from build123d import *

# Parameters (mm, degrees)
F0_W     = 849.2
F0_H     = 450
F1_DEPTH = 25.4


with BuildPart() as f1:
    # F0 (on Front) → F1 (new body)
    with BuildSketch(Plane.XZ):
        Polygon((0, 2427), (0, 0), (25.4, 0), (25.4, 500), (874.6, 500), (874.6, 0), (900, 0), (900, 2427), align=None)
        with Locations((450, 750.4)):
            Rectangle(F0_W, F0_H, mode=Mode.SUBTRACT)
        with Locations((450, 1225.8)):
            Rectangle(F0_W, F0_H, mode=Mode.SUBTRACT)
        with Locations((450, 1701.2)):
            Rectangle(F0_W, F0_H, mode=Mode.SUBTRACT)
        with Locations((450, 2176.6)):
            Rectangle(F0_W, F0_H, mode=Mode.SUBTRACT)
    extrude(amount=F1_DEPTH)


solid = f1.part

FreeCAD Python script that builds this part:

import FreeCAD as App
import Part
import Sketcher

V = App.Vector
Q = App.Units.Quantity


def add_polygon(sketch, points):
    """Adds a closed chain of lines whose ends are joined by coincident constraints."""
    first, n = sketch.GeometryCount, len(points)
    for a, b in zip(points, points[1:] + points[:1]):
        sketch.addGeometry(Part.LineSegment(App.Vector(*a, 0), App.Vector(*b, 0)), False)
    for i in range(n):
        sketch.addConstraint(Sketcher.Constraint("Coincident", first + i, 2, first + (i + 1) % n, 1))

doc = App.newDocument("Part")
body = doc.addObject("PartDesign::Body", "Body")

sketch1 = body.newObject("Sketcher::SketchObject", "Sketch")
sketch1.AttachmentSupport = (doc.getObject("XZ_Plane"), [""])
sketch1.MapMode = "FlatFace"
add_polygon(sketch1, [(0, 2427), (0, 0), (25.4, 0), (25.4, 500), (874.6, 500), (874.6, 0), (900, 0), (900, 2427)])
add_polygon(sketch1, [(874.6, 525.4), (25.4, 525.4), (25.4, 975.4), (874.6, 975.4)])
add_polygon(sketch1, [(874.6, 1000.8), (25.4, 1000.8), (25.4, 1450.8), (874.6, 1450.8)])
add_polygon(sketch1, [(874.6, 1476.2), (25.4, 1476.2), (25.4, 1926.2), (874.6, 1926.2)])
add_polygon(sketch1, [(874.6, 1951.6), (25.4, 1951.6), (25.4, 2401.6), (874.6, 2401.6)])
sketch1.addConstraint(Sketcher.Constraint("Vertical", 0))
sketch1.addConstraint(Sketcher.Constraint("Horizontal", 1))
sketch1.addConstraint(Sketcher.Constraint("Vertical", 2))
sketch1.addConstraint(Sketcher.Constraint("Horizontal", 3))
sketch1.addConstraint(Sketcher.Constraint("Vertical", 4))
sketch1.addConstraint(Sketcher.Constraint("Horizontal", 5))
sketch1.addConstraint(Sketcher.Constraint("Vertical", 6))
sketch1.addConstraint(Sketcher.Constraint("Horizontal", 7))
sketch1.addConstraint(Sketcher.Constraint("Horizontal", 8))
sketch1.addConstraint(Sketcher.Constraint("Vertical", 9))
sketch1.addConstraint(Sketcher.Constraint("Horizontal", 10))
sketch1.addConstraint(Sketcher.Constraint("Vertical", 11))
sketch1.addConstraint(Sketcher.Constraint("Horizontal", 12))
sketch1.addConstraint(Sketcher.Constraint("Vertical", 13))
sketch1.addConstraint(Sketcher.Constraint("Horizontal", 14))
sketch1.addConstraint(Sketcher.Constraint("Vertical", 15))
sketch1.addConstraint(Sketcher.Constraint("Horizontal", 16))
sketch1.addConstraint(Sketcher.Constraint("Vertical", 17))
sketch1.addConstraint(Sketcher.Constraint("Horizontal", 18))
sketch1.addConstraint(Sketcher.Constraint("Vertical", 19))
sketch1.addConstraint(Sketcher.Constraint("Horizontal", 20))
sketch1.addConstraint(Sketcher.Constraint("Vertical", 21))
sketch1.addConstraint(Sketcher.Constraint("Horizontal", 22))
sketch1.addConstraint(Sketcher.Constraint("Vertical", 23))
sketch1.addConstraint(Sketcher.Constraint("Coincident", 0, 2, -1, 1))
sketch1.addConstraint(Sketcher.Constraint("PointOnObject", 4, 2, -1))
sketch1.addConstraint(Sketcher.Constraint("Vertical", 2, 2, 8, 2))
sketch1.addConstraint(Sketcher.Constraint("Vertical", 4, 2, 10, 2))
sketch1.addConstraint(Sketcher.Constraint("Vertical", 9, 2, 12, 2))
sketch1.addConstraint(Sketcher.Constraint("Vertical", 11, 2, 14, 2))
sketch1.addConstraint(Sketcher.Constraint("Vertical", 13, 2, 16, 2))
sketch1.addConstraint(Sketcher.Constraint("Vertical", 15, 2, 18, 2))
sketch1.addConstraint(Sketcher.Constraint("Vertical", 17, 2, 20, 2))
sketch1.addConstraint(Sketcher.Constraint("Vertical", 19, 2, 22, 2))
sketch1.addConstraint(Sketcher.Constraint("Equal", 1, 5))
sketch1.addConstraint(Sketcher.Constraint("Equal", 11, 13))
sketch1.addConstraint(Sketcher.Constraint("Equal", 15, 17))
sketch1.addConstraint(Sketcher.Constraint("Equal", 19, 21))
sketch1.addConstraint(Sketcher.Constraint("DistanceX", 7, 2, 7, 1, Q("900 mm")))
sketch1.addConstraint(Sketcher.Constraint("DistanceY", 0, 2, 0, 1, Q("2427 mm")))
sketch1.addConstraint(Sketcher.Constraint("DistanceY", 2, 1, 2, 2, Q("500 mm")))
sketch1.addConstraint(Sketcher.Constraint("DistanceY", 9, 1, 9, 2, Q("450 mm")))
sketch1.addConstraint(Sketcher.Constraint("DistanceX", 1, 1, 1, 2, Q("25.4 mm")))
sketch1.addConstraint(Sketcher.Constraint("DistanceY", -1, 1, 8, 2, Q("525.4 mm")))
sketch1.addConstraint(Sketcher.Constraint("DistanceY", -1, 1, 12, 2, Q("1000.8 mm")))
sketch1.addConstraint(Sketcher.Constraint("DistanceY", -1, 1, 16, 2, Q("1476.2 mm")))
sketch1.addConstraint(Sketcher.Constraint("DistanceY", -1, 1, 20, 2, Q("1951.6 mm")))
pad1 = body.newObject("PartDesign::Pad", "Pad")
pad1.Profile = sketch1
pad1.Length = 25.4

doc.recompute()
